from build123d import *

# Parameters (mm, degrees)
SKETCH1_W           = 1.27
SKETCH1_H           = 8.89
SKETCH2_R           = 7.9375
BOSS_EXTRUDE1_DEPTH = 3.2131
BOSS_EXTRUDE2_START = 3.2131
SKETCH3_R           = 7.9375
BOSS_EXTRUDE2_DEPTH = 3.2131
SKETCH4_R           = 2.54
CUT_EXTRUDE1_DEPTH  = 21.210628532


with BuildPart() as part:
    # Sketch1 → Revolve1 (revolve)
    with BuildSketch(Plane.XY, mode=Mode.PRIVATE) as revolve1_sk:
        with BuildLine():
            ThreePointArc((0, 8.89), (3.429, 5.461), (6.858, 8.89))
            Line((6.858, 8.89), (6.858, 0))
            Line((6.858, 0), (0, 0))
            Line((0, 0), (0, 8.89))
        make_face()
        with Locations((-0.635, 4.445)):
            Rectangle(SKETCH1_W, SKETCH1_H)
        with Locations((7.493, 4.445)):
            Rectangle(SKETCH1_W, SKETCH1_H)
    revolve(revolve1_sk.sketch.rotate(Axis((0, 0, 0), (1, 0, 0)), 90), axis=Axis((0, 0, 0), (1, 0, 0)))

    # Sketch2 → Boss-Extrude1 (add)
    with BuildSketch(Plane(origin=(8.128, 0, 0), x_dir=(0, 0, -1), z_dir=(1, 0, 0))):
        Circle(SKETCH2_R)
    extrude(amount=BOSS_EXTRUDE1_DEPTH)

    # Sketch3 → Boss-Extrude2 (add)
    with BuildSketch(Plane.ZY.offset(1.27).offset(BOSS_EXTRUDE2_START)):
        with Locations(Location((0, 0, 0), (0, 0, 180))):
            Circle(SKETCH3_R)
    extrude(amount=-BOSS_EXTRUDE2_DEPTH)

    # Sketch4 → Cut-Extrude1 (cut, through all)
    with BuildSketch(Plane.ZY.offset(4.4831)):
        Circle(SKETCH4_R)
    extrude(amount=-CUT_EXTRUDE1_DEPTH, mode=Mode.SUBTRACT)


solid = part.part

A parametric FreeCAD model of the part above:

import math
import FreeCAD as App
import Part
import Sketcher
Q = App.Units.Quantity

doc = App.newDocument("Part")
body = doc.addObject("PartDesign::Body", "Body")

# Sketch on XY plane
sketch1 = body.newObject("Sketcher::SketchObject", "Sketch")
sketch1.AttachmentSupport = (doc.getObject("XY_Plane"), [""])
sketch1.MapMode = "FlatFace"
sketch1.addGeometry([
    Part.ArcOfCircle(Part.Circle(App.Vector(3.4, 8.9, 0), App.Vector(0, 0, 1), 3.4), math.radians(180), math.radians(360)),  # 0
    Part.LineSegment(App.Vector(0, 8.9, 0), App.Vector(-1.3, 8.9, 0)),  # 1
    Part.LineSegment(App.Vector(-1.3, 8.9, 0), App.Vector(-1.3, 0, 0)),  # 2
    Part.LineSegment(App.Vector(-1.3, 0, 0), App.Vector(8.1, 0, 0)),  # 3
    Part.LineSegment(App.Vector(8.1, 0, 0), App.Vector(8.1, 8.9, 0)),  # 4
    Part.LineSegment(App.Vector(8.1, 8.9, 0), App.Vector(6.9, 8.9, 0)),  # 5
], False)
sketch1.addConstraint([
    Sketcher.Constraint("Coincident", 0, 1, 1, 1),
    Sketcher.Constraint("Coincident", 1, 2, 2, 1),
    Sketcher.Constraint("Coincident", 2, 2, 3, 1),
    Sketcher.Constraint("Coincident", 3, 2, 4, 1),
    Sketcher.Constraint("Coincident", 4, 2, 5, 1),
    Sketcher.Constraint("Coincident", 5, 2, 0, 2),
    Sketcher.Constraint("Horizontal", 1),
    Sketcher.Constraint("Vertical", 2),
    Sketcher.Constraint("Horizontal", 3),
    Sketcher.Constraint("Vertical", 4),
    Sketcher.Constraint("Horizontal", 5),
    Sketcher.Constraint("PointOnObject", 0, 1, -2),
    Sketcher.Constraint("PointOnObject", 2, 2, -1),
    Sketcher.Constraint("Horizontal", 1, 2, 4, 2),
    Sketcher.Constraint("Equal", 1, 5),
    Sketcher.Constraint("Radius", 0, Q("0.135 in")),
    Sketcher.Constraint("DistanceX", 1, 2, 1, 1, Q("0.05 in")),
    Sketcher.Constraint("DistanceY", 2, 2, 2, 1, Q("0.35 in")),
    Sketcher.Constraint("DistanceY", -1, 1, 0, 3, Q("0.35 in")),
])
revolution = body.newObject("PartDesign::Revolution", "Revolution")
revolution.Profile = sketch1
revolution.ReferenceAxis = (sketch1, ["H_Axis"])
revolution.Angle = 360

# Sketch on YZ plane
sketch2 = body.newObject("Sketcher::SketchObject", "Sketch001")
sketch2.AttachmentSupport = (doc.getObject("YZ_Plane"), [""])
sketch2.MapMode = "FlatFace"
sketch2.AttachmentOffset = App.Placement(App.Vector(0, 0, 0.32 * 25.4), App.Rotation())
sketch2.addGeometry(Part.Circle(App.Vector(0, 0, 0), App.Vector(0, 0, 1), 8), False)
sketch2.addConstraint([
    Sketcher.Constraint("Coincident", 0, 3, -1, 1),
    Sketcher.Constraint("Diameter", 0, Q("0.625 in")),
])
pad1 = body.newObject("PartDesign::Pad", "Pad")
pad1.Profile = sketch2
pad1.Length = Q("0.1265 in")

# Sketch on YZ plane
sketch3 = body.newObject("Sketcher::SketchObject", "Sketch002")
sketch3.AttachmentSupport = (doc.getObject("YZ_Plane"), [""])
sketch3.MapMode = "FlatFace"
sketch3.AttachmentOffset = App.Placement(App.Vector(0, 0, -0.1765 * 25.4), App.Rotation())
sketch3.addGeometry(Part.Circle(App.Vector(0, 0, 0), App.Vector(0, 0, 1), 8), False)
sketch3.addConstraint([
    Sketcher.Constraint("Coincident", 0, 3, -1, 1),
    Sketcher.Constraint("Diameter", 0, Q("0.625 in")),
])
pad2 = body.newObject("PartDesign::Pad", "Pad001")
pad2.Profile = sketch3
pad2.Length = Q("0.1265 in")

# Sketch on YZ plane
sketch4 = body.newObject("Sketcher::SketchObject", "Sketch003")
sketch4.AttachmentSupport = (doc.getObject("YZ_Plane"), [""])
sketch4.MapMode = "FlatFace"
sketch4.AttachmentOffset = App.Placement(App.Vector(0, 0, -0.1765 * 25.4), App.Rotation())
sketch4.addGeometry(Part.Circle(App.Vector(0, 0, 0), App.Vector(0, 0, 1), 2.5), False)
sketch4.addConstraint([
    Sketcher.Constraint("Coincident", 0, 3, -1, 1),
    Sketcher.Constraint("Diameter", 0, Q("0.2 in")),
])
pocket1 = body.newObject("PartDesign::Pocket", "Pocket")
pocket1.Profile = sketch4
pocket1.Type = "ThroughAll"
pocket1.Reversed = True

doc.recompute()
